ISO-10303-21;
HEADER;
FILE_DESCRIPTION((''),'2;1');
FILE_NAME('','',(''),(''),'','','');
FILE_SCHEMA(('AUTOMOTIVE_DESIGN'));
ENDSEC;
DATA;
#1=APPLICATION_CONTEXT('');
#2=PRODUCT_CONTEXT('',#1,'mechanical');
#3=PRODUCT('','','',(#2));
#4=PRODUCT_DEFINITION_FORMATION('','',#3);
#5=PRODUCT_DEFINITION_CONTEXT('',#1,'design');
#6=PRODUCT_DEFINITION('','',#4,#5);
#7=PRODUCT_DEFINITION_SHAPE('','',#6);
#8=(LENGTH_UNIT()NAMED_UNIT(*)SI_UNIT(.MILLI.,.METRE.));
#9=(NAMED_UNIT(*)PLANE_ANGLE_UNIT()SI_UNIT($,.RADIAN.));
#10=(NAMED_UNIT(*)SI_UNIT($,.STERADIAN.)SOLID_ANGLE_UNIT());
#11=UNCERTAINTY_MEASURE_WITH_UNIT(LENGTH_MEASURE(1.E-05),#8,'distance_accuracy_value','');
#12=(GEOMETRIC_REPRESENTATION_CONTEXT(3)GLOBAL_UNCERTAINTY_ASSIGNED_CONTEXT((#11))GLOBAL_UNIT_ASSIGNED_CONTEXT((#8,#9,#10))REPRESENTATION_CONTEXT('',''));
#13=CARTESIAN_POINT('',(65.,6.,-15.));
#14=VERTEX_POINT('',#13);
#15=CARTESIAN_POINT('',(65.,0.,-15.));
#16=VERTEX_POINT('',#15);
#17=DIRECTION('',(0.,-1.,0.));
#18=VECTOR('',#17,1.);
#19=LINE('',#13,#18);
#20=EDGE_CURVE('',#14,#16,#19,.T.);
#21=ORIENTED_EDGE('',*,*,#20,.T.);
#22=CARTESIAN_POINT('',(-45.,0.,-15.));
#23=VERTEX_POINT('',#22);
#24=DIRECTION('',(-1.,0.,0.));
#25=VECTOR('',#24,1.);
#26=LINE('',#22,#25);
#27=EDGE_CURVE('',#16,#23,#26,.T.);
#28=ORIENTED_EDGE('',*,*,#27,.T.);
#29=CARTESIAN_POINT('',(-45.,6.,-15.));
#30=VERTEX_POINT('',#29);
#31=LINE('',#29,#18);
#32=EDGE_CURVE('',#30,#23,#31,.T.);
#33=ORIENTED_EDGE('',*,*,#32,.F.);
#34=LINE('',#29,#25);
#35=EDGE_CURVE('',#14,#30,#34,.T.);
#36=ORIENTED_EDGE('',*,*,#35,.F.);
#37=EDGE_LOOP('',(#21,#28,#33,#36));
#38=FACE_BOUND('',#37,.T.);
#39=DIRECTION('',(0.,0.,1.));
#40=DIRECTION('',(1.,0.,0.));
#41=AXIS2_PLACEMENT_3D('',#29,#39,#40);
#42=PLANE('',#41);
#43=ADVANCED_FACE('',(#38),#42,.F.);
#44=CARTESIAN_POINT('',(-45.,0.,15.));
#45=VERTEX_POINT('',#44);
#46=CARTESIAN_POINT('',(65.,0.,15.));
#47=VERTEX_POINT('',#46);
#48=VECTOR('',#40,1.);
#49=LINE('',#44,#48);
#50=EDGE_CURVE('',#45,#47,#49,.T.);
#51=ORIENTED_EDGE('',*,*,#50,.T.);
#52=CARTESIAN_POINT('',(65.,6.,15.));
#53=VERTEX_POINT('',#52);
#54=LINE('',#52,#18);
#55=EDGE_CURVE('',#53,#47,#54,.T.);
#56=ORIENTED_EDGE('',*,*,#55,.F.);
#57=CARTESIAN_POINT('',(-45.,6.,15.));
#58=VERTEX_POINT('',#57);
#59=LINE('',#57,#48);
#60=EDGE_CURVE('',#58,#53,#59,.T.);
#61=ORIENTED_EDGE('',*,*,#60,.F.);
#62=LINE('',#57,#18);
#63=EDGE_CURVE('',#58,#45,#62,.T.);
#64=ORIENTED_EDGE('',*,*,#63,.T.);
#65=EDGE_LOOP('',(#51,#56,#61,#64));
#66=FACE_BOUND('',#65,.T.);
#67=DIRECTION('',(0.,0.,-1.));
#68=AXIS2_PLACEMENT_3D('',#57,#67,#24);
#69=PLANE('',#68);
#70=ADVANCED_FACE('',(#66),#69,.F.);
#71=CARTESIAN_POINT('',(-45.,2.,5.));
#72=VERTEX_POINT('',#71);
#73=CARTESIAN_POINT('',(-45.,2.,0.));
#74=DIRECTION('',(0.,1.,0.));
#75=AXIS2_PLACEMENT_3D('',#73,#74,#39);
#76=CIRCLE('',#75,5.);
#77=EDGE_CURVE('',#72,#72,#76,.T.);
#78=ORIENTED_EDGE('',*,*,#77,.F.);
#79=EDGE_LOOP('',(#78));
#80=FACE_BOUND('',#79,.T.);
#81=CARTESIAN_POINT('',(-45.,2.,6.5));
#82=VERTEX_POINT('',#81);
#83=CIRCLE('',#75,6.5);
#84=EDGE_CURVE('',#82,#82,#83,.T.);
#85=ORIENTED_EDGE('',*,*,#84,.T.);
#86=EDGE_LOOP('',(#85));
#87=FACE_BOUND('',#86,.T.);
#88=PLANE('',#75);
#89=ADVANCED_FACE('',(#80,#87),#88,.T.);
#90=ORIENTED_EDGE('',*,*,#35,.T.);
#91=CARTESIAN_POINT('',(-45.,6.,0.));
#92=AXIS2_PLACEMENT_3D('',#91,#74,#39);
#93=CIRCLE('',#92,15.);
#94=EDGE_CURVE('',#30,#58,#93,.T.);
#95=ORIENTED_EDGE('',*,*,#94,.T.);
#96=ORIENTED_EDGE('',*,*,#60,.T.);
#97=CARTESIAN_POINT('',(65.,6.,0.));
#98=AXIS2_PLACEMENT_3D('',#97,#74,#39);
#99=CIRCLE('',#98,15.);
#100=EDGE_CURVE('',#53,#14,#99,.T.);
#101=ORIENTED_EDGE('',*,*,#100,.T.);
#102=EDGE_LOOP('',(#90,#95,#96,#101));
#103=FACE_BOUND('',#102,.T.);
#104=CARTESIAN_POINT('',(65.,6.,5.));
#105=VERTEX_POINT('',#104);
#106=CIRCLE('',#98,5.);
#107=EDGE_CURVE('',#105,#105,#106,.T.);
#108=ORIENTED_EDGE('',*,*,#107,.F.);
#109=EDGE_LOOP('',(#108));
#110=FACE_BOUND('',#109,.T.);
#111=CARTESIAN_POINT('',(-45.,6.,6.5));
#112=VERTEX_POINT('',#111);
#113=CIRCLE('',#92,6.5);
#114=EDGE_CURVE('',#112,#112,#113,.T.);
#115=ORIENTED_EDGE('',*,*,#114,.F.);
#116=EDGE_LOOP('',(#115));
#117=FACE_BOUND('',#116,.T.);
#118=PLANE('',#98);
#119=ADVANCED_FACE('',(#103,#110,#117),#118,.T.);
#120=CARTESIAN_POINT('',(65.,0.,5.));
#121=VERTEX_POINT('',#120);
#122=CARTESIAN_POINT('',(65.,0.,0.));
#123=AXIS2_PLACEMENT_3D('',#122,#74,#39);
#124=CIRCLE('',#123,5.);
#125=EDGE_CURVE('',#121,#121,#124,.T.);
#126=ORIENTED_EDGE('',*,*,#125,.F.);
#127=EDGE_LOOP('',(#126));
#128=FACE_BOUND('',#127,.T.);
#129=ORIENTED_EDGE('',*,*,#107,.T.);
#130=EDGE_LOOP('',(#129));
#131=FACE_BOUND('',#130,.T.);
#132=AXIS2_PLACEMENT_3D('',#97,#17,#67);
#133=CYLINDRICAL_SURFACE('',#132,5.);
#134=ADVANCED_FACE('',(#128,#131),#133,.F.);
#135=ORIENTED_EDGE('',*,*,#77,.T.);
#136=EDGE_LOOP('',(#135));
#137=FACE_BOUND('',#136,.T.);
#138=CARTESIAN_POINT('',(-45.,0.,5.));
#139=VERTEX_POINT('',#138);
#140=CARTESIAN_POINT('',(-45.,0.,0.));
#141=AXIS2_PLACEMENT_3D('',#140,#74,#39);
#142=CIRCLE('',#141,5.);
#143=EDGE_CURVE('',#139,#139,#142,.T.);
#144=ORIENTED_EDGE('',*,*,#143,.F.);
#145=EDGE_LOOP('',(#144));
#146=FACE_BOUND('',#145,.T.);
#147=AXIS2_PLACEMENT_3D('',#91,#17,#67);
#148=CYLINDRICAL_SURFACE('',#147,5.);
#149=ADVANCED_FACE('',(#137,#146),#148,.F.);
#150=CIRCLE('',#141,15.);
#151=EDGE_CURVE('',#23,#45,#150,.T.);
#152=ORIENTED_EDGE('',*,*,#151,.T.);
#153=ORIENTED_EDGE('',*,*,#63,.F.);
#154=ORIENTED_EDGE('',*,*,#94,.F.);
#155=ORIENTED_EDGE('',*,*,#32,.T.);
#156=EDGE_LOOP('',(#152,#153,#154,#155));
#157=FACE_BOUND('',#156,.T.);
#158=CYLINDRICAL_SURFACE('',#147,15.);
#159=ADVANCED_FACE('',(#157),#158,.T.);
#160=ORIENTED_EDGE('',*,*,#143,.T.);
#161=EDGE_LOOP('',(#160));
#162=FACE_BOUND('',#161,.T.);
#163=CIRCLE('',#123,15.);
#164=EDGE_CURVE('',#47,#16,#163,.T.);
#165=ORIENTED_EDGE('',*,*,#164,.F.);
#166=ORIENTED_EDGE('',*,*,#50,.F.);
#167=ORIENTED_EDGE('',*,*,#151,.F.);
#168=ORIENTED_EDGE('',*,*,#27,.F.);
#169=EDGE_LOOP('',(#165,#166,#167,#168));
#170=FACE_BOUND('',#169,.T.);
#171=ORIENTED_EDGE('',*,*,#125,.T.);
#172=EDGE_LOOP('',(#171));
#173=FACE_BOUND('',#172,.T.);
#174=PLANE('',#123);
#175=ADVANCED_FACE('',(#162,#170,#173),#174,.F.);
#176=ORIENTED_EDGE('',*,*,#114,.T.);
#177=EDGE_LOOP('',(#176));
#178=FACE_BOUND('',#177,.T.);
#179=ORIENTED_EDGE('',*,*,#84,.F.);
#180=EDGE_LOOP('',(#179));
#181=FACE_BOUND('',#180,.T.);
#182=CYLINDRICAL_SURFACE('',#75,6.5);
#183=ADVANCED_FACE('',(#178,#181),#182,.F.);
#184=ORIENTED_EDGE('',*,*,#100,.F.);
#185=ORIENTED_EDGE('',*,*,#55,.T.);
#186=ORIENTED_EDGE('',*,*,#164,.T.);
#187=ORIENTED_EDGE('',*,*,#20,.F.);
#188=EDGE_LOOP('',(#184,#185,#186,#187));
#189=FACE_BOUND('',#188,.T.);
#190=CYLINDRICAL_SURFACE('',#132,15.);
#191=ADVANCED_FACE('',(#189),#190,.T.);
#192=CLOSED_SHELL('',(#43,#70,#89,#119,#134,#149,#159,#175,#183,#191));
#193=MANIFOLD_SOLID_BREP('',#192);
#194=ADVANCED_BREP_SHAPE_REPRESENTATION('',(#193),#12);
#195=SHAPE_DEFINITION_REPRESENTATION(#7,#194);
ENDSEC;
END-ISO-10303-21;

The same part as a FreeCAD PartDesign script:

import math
import FreeCAD as App
import Part
import Sketcher
Q = App.Units.Quantity

doc = App.newDocument("Part")
params = doc.addObject("Spreadsheet::Sheet", "Params")
for row, (alias, value) in enumerate([
    ("sketch1_diameter", "10 mm"),
    ("sketch1_radius", "15 mm"),
    ("sketch1_width", "110 mm"),
    ("pad1_length", "6 mm"),
    ("sketch2_diameter", "13 mm"),
    ("pocket1_length", "4 mm"),
], start=1):
    params.set(f"A{row}", alias)
    params.set(f"B{row}", "=" + value)
    params.setAlias(f"B{row}", alias)

body = doc.addObject("PartDesign::Body", "Body")

sketch1 = body.newObject("Sketcher::SketchObject", "Sketch")
sketch1.AttachmentSupport = (doc.getObject("XZ_Plane"), [""])
sketch1.MapMode = "FlatFace"
sketch1.addGeometry(Part.LineSegment(App.Vector(65, -15, 0), App.Vector(-45, -15, 0)), False)
sketch1.addGeometry(Part.ArcOfCircle(Part.Circle(App.Vector(-45, 0, 0), App.Vector(0, 0, 1), 15), math.radians(90), math.radians(270)), False)
sketch1.addGeometry(Part.LineSegment(App.Vector(-45, 15, 0), App.Vector(65, 15, 0)), False)
sketch1.addGeometry(Part.ArcOfCircle(Part.Circle(App.Vector(65, 0, 0), App.Vector(0, 0, 1), 15), math.radians(-90), math.radians(90)), False)
sketch1.addGeometry(Part.Circle(App.Vector(65, 0, 0), App.Vector(0, 0, 1), 5), False)
sketch1.addGeometry(Part.Circle(App.Vector(-45, 0, 0), App.Vector(0, 0, 1), 5), False)
sketch1.addConstraint(Sketcher.Constraint("Tangent", 0, 2, 1, 2))
sketch1.addConstraint(Sketcher.Constraint("Tangent", 1, 1, 2, 1))
sketch1.addConstraint(Sketcher.Constraint("Tangent", 2, 2, 3, 2))
sketch1.addConstraint(Sketcher.Constraint("Tangent", 3, 1, 0, 1))
sketch1.addConstraint(Sketcher.Constraint("Horizontal", 0))
sketch1.addConstraint(Sketcher.Constraint("Horizontal", 2))
sketch1.addConstraint(Sketcher.Constraint("Coincident", 4, 3, 3, 3))
sketch1.addConstraint(Sketcher.Constraint("Coincident", 5, 3, 1, 3))
sketch1.addConstraint(Sketcher.Constraint("Equal", 4, 5))
sketch1.addConstraint(Sketcher.Constraint("PointOnObject", 1, 3, -1))
sketch1.addConstraint(Sketcher.Constraint("Diameter", 4, Q("10 mm")))
sketch1.addConstraint(Sketcher.Constraint("Radius", 1, Q("15 mm")))
sketch1.addConstraint(Sketcher.Constraint("DistanceX", 0, 2, 0, 1, Q("110 mm")))
sketch1.addConstraint(Sketcher.Constraint("DistanceX", 1, 3, -1, 1, Q("45 mm")))
sketch1.setExpression("Constraints[10]", "Params.sketch1_diameter")
sketch1.setExpression("Constraints[11]", "Params.sketch1_radius")
sketch1.setExpression("Constraints[12]", "Params.sketch1_width")
pad1 = body.newObject("PartDesign::Pad", "Pad")
pad1.Profile = sketch1
pad1.setExpression("Length", "Params.pad1_length")
pad1.Reversed = True

sketch2 = body.newObject("Sketcher::SketchObject", "Sketch001")
sketch2.AttachmentSupport = (doc.getObject("XZ_Plane"), [""])
sketch2.MapMode = "FlatFace"
sketch2.AttachmentOffset = App.Placement(App.Vector(0, 0, -6), App.Rotation())
sketch2.addGeometry(Part.Circle(App.Vector(-45, 0, 0), App.Vector(0, 0, 1), 6), False)
sketch2.addConstraint(Sketcher.Constraint("PointOnObject", 0, 3, -1))
sketch2.addConstraint(Sketcher.Constraint("Diameter", 0, Q("13 mm")))
sketch2.addConstraint(Sketcher.Constraint("DistanceX", 0, 3, -1, 1, Q("45 mm")))
sketch2.setExpression("Constraints[1]", "Params.sketch2_diameter")
pocket1 = body.newObject("PartDesign::Pocket", "Pocket")
pocket1.Profile = sketch2
pocket1.setExpression("Length", "Params.pocket1_length")
pocket1.Reversed = True

doc.recompute()
